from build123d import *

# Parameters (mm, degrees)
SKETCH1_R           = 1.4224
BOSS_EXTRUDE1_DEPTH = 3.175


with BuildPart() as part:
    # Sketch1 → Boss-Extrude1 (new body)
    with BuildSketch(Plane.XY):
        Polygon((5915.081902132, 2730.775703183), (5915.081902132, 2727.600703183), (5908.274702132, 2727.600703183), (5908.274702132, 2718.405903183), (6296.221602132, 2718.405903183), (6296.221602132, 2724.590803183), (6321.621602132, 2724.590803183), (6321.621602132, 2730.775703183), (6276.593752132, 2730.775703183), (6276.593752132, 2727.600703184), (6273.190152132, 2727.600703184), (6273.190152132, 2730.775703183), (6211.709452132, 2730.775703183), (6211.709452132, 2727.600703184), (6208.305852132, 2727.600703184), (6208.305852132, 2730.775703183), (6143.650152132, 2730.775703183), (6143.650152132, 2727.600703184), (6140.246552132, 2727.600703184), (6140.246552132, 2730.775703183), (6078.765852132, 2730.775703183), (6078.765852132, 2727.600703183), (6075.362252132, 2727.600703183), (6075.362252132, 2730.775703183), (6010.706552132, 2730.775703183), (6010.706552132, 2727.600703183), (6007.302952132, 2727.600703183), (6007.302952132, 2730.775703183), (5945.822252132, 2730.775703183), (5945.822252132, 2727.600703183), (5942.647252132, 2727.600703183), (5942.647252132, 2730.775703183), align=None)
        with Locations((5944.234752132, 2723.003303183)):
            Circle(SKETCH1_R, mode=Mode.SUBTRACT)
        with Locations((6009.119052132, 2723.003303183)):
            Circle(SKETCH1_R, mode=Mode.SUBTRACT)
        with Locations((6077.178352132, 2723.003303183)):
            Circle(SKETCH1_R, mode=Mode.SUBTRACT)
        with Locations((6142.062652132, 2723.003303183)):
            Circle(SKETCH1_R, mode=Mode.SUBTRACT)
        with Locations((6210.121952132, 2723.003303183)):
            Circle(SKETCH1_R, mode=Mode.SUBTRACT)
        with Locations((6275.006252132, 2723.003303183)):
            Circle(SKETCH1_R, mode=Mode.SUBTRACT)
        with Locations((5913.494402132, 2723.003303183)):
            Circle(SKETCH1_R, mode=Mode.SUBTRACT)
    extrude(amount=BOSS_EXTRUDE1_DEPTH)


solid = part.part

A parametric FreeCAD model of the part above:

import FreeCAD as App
import Part
import Sketcher

V = App.Vector
Q = App.Units.Quantity


def add_polygon(sketch, points):
    """Adds a closed chain of lines whose ends are joined by coincident constraints."""
    first, n = sketch.GeometryCount, len(points)
    for a, b in zip(points, points[1:] + points[:1]):
        sketch.addGeometry(Part.LineSegment(App.Vector(*a, 0), App.Vector(*b, 0)), False)
    for i in range(n):
        sketch.addConstraint(Sketcher.Constraint("Coincident", first + i, 2, first + (i + 1) % n, 1))

doc = App.newDocument("Part")
body = doc.addObject("PartDesign::Body", "Body")

sketch1 = body.newObject("Sketcher::SketchObject", "Sketch")
sketch1.AttachmentSupport = (doc.getObject("XY_Plane"), [""])
sketch1.MapMode = "FlatFace"
add_polygon(sketch1, [(5915.081902, 2730.775703), (5915.081902, 2727.600703), (5908.274702, 2727.600703), (5908.274702, 2718.405903), (6296.221602, 2718.405903), (6296.221602, 2724.590803), (6321.621602, 2724.590803), (6321.621602, 2730.775703), (6276.593752, 2730.775703), (6276.593752, 2727.600703), (6273.190152, 2727.600703), (6273.190152, 2730.775703), (6211.709452, 2730.775703), (6211.709452, 2727.600703), (6208.305852, 2727.600703), (6208.305852, 2730.775703), (6143.650152, 2730.775703), (6143.650152, 2727.600703), (6140.246552, 2727.600703), (6140.246552, 2730.775703), (6078.765852, 2730.775703), (6078.765852, 2727.600703), (6075.362252, 2727.600703), (6075.362252, 2730.775703), (6010.706552, 2730.775703), (6010.706552, 2727.600703), (6007.302952, 2727.600703), (6007.302952, 2730.775703), (5945.822252, 2730.775703), (5945.822252, 2727.600703), (5942.647252, 2727.600703), (5942.647252, 2730.775703)])
sketch1.addGeometry(Part.Circle(V(5913.494402, 2723.003303, 0), V(0, 0, 1), 1.4224), False)
sketch1.addGeometry(Part.Circle(V(5944.234752, 2723.003303, 0), V(0, 0, 1), 1.4224), False)
sketch1.addGeometry(Part.Circle(V(6009.119052, 2723.003303, 0), V(0, 0, 1), 1.4224), False)
sketch1.addGeometry(Part.Circle(V(6077.178352, 2723.003303, 0), V(0, 0, 1), 1.4224), False)
sketch1.addGeometry(Part.Circle(V(6142.062652, 2723.003303, 0), V(0, 0, 1), 1.4224), False)
sketch1.addGeometry(Part.Circle(V(6210.121952, 2723.003303, 0), V(0, 0, 1), 1.4224), False)
sketch1.addGeometry(Part.Circle(V(6275.006252, 2723.003303, 0), V(0, 0, 1), 1.4224), False)
sketch1.addConstraint(Sketcher.Constraint("Vertical", 0))
sketch1.addConstraint(Sketcher.Constraint("Horizontal", 1))
sketch1.addConstraint(Sketcher.Constraint("Vertical", 2))
sketch1.addConstraint(Sketcher.Constraint("Horizontal", 3))
sketch1.addConstraint(Sketcher.Constraint("Vertical", 4))
sketch1.addConstraint(Sketcher.Constraint("Horizontal", 5))
sketch1.addConstraint(Sketcher.Constraint("Vertical", 6))
sketch1.addConstraint(Sketcher.Constraint("Horizontal", 7))
sketch1.addConstraint(Sketcher.Constraint("Vertical", 8))
sketch1.addConstraint(Sketcher.Constraint("Horizontal", 9))
sketch1.addConstraint(Sketcher.Constraint("Vertical", 10))
sketch1.addConstraint(Sketcher.Constraint("Horizontal", 11))
sketch1.addConstraint(Sketcher.Constraint("Vertical", 12))
sketch1.addConstraint(Sketcher.Constraint("Horizontal", 13))
sketch1.addConstraint(Sketcher.Constraint("Vertical", 14))
sketch1.addConstraint(Sketcher.Constraint("Horizontal", 15))
sketch1.addConstraint(Sketcher.Constraint("Vertical", 16))
sketch1.addConstraint(Sketcher.Constraint("Horizontal", 17))
sketch1.addConstraint(Sketcher.Constraint("Vertical", 18))
sketch1.addConstraint(Sketcher.Constraint("Horizontal", 19))
sketch1.addConstraint(Sketcher.Constraint("Vertical", 20))
sketch1.addConstraint(Sketcher.Constraint("Horizontal", 21))
sketch1.addConstraint(Sketcher.Constraint("Vertical", 22))
sketch1.addConstraint(Sketcher.Constraint("Horizontal", 23))
sketch1.addConstraint(Sketcher.Constraint("Vertical", 24))
sketch1.addConstraint(Sketcher.Constraint("Horizontal", 25))
sketch1.addConstraint(Sketcher.Constraint("Vertical", 26))
sketch1.addConstraint(Sketcher.Constraint("Horizontal", 27))
sketch1.addConstraint(Sketcher.Constraint("Vertical", 28))
sketch1.addConstraint(Sketcher.Constraint("Horizontal", 29))
sketch1.addConstraint(Sketcher.Constraint("Vertical", 30))
sketch1.addConstraint(Sketcher.Constraint("Horizontal", 31))
sketch1.addConstraint(Sketcher.Constraint("Equal", 32, 33))
sketch1.addConstraint(Sketcher.Constraint("Equal", 33, 34))
sketch1.addConstraint(Sketcher.Constraint("Equal", 34, 35))
sketch1.addConstraint(Sketcher.Constraint("Equal", 35, 36))
sketch1.addConstraint(Sketcher.Constraint("Equal", 36, 37))
sketch1.addConstraint(Sketcher.Constraint("Equal", 37, 38))
sketch1.addConstraint(Sketcher.Constraint("Horizontal", 32, 3, 33, 3))
sketch1.addConstraint(Sketcher.Constraint("Horizontal", 33, 3, 34, 3))
sketch1.addConstraint(Sketcher.Constraint("Horizontal", 34, 3, 35, 3))
sketch1.addConstraint(Sketcher.Constraint("Horizontal", 35, 3, 36, 3))
sketch1.addConstraint(Sketcher.Constraint("Horizontal", 36, 3, 37, 3))
sketch1.addConstraint(Sketcher.Constraint("Horizontal", 37, 3, 38, 3))
sketch1.addConstraint(Sketcher.Constraint("Horizontal", 1, 2, 8, 2))
sketch1.addConstraint(Sketcher.Constraint("Horizontal", 7, 2, 10, 2))
sketch1.addConstraint(Sketcher.Constraint("Horizontal", 9, 2, 12, 2))
sketch1.addConstraint(Sketcher.Constraint("Horizontal", 11, 2, 14, 2))
sketch1.addConstraint(Sketcher.Constraint("Horizontal", 13, 2, 16, 2))
sketch1.addConstraint(Sketcher.Constraint("Horizontal", 15, 2, 18, 2))
sketch1.addConstraint(Sketcher.Constraint("Horizontal", 17, 2, 20, 2))
sketch1.addConstraint(Sketcher.Constraint("Horizontal", 19, 2, 22, 2))
sketch1.addConstraint(Sketcher.Constraint("Horizontal", 21, 2, 24, 2))
sketch1.addConstraint(Sketcher.Constraint("Horizontal", 23, 2, 26, 2))
sketch1.addConstraint(Sketcher.Constraint("Horizontal", 25, 2, 28, 2))
sketch1.addConstraint(Sketcher.Constraint("Horizontal", 27, 2, 30, 2))
sketch1.addConstraint(Sketcher.Constraint("Equal", 9, 13))
sketch1.addConstraint(Sketcher.Constraint("Equal", 13, 17))
sketch1.addConstraint(Sketcher.Constraint("Equal", 11, 19))
sketch1.addConstraint(Sketcher.Constraint("Equal", 17, 21))
sketch1.addConstraint(Sketcher.Constraint("Equal", 15, 23))
sketch1.addConstraint(Sketcher.Constraint("Equal", 21, 25))
sketch1.addConstraint(Sketcher.Constraint("Equal", 19, 27))
sketch1.addConstraint(Sketcher.Constraint("Equal", 29, 0))
sketch1.addConstraint(Sketcher.Constraint("Equal", 4, 6))
sketch1.addConstraint(Sketcher.Constraint("DistanceX", 5, 1, 5, 2, Q("1 in")))
sketch1.addConstraint(Sketcher.Constraint("Diameter", 32, Q("0.112 in")))
sketch1.addConstraint(Sketcher.Constraint("DistanceX", 1, 2, 1, 1, Q("0.268 in")))
sketch1.addConstraint(Sketcher.Constraint("DistanceX", 9, 2, 9, 1, Q("0.134 in")))
sketch1.addConstraint(Sketcher.Constraint("DistanceX", 29, 2, 29, 1, Q("0.125 in")))
sketch1.addConstraint(Sketcher.Constraint("DistanceY", 2, 2, 2, 1, Q("0.362 in")))
sketch1.addConstraint(Sketcher.Constraint("DistanceX", 3, 1, 3, 2, Q("15.2735 in")))
sketch1.addConstraint(Sketcher.Constraint("DistanceX", 11, 2, 11, 1, Q("2.4205 in")))
sketch1.addConstraint(Sketcher.Constraint("DistanceX", 15, 2, 15, 1, Q("2.5455 in")))
sketch1.addConstraint(Sketcher.Constraint("DistanceX", 33, 3, 35, 3, Q("5.234 in")))
sketch1.addConstraint(Sketcher.Constraint("DistanceX", 34, 3, 36, 3, Q("5.234 in")))
sketch1.addConstraint(Sketcher.Constraint("DistanceX", 35, 3, 37, 3, Q("5.234 in")))
sketch1.addConstraint(Sketcher.Constraint("DistanceX", 36, 3, 38, 3, Q("5.234 in")))
sketch1.addConstraint(Sketcher.Constraint("DistanceX", 32, 3, 0, 2, Q("0.0625 in")))
sketch1.addConstraint(Sketcher.Constraint("DistanceY", 32, 3, 0, 2, Q("0.181 in")))
sketch1.addConstraint(Sketcher.Constraint("DistanceX", 38, 3, 7, 2, Q("0.0625 in")))
sketch1.addConstraint(Sketcher.Constraint("DistanceX", 37, 3, 11, 2, Q("0.0625 in")))
sketch1.addConstraint(Sketcher.Constraint("DistanceX", 7, 2, 7, 1, Q("45.02785 mm")))
sketch1.addConstraint(Sketcher.Constraint("DistanceX", -1, 1, 32, 3, Q("5913.494402 mm")))
sketch1.addConstraint(Sketcher.Constraint("DistanceY", -1, 1, 32, 3, Q("2723.003303 mm")))
pad1 = body.newObject("PartDesign::Pad", "Pad")
pad1.Profile = sketch1
pad1.Length = Q("0.125 in")

doc.recompute()
